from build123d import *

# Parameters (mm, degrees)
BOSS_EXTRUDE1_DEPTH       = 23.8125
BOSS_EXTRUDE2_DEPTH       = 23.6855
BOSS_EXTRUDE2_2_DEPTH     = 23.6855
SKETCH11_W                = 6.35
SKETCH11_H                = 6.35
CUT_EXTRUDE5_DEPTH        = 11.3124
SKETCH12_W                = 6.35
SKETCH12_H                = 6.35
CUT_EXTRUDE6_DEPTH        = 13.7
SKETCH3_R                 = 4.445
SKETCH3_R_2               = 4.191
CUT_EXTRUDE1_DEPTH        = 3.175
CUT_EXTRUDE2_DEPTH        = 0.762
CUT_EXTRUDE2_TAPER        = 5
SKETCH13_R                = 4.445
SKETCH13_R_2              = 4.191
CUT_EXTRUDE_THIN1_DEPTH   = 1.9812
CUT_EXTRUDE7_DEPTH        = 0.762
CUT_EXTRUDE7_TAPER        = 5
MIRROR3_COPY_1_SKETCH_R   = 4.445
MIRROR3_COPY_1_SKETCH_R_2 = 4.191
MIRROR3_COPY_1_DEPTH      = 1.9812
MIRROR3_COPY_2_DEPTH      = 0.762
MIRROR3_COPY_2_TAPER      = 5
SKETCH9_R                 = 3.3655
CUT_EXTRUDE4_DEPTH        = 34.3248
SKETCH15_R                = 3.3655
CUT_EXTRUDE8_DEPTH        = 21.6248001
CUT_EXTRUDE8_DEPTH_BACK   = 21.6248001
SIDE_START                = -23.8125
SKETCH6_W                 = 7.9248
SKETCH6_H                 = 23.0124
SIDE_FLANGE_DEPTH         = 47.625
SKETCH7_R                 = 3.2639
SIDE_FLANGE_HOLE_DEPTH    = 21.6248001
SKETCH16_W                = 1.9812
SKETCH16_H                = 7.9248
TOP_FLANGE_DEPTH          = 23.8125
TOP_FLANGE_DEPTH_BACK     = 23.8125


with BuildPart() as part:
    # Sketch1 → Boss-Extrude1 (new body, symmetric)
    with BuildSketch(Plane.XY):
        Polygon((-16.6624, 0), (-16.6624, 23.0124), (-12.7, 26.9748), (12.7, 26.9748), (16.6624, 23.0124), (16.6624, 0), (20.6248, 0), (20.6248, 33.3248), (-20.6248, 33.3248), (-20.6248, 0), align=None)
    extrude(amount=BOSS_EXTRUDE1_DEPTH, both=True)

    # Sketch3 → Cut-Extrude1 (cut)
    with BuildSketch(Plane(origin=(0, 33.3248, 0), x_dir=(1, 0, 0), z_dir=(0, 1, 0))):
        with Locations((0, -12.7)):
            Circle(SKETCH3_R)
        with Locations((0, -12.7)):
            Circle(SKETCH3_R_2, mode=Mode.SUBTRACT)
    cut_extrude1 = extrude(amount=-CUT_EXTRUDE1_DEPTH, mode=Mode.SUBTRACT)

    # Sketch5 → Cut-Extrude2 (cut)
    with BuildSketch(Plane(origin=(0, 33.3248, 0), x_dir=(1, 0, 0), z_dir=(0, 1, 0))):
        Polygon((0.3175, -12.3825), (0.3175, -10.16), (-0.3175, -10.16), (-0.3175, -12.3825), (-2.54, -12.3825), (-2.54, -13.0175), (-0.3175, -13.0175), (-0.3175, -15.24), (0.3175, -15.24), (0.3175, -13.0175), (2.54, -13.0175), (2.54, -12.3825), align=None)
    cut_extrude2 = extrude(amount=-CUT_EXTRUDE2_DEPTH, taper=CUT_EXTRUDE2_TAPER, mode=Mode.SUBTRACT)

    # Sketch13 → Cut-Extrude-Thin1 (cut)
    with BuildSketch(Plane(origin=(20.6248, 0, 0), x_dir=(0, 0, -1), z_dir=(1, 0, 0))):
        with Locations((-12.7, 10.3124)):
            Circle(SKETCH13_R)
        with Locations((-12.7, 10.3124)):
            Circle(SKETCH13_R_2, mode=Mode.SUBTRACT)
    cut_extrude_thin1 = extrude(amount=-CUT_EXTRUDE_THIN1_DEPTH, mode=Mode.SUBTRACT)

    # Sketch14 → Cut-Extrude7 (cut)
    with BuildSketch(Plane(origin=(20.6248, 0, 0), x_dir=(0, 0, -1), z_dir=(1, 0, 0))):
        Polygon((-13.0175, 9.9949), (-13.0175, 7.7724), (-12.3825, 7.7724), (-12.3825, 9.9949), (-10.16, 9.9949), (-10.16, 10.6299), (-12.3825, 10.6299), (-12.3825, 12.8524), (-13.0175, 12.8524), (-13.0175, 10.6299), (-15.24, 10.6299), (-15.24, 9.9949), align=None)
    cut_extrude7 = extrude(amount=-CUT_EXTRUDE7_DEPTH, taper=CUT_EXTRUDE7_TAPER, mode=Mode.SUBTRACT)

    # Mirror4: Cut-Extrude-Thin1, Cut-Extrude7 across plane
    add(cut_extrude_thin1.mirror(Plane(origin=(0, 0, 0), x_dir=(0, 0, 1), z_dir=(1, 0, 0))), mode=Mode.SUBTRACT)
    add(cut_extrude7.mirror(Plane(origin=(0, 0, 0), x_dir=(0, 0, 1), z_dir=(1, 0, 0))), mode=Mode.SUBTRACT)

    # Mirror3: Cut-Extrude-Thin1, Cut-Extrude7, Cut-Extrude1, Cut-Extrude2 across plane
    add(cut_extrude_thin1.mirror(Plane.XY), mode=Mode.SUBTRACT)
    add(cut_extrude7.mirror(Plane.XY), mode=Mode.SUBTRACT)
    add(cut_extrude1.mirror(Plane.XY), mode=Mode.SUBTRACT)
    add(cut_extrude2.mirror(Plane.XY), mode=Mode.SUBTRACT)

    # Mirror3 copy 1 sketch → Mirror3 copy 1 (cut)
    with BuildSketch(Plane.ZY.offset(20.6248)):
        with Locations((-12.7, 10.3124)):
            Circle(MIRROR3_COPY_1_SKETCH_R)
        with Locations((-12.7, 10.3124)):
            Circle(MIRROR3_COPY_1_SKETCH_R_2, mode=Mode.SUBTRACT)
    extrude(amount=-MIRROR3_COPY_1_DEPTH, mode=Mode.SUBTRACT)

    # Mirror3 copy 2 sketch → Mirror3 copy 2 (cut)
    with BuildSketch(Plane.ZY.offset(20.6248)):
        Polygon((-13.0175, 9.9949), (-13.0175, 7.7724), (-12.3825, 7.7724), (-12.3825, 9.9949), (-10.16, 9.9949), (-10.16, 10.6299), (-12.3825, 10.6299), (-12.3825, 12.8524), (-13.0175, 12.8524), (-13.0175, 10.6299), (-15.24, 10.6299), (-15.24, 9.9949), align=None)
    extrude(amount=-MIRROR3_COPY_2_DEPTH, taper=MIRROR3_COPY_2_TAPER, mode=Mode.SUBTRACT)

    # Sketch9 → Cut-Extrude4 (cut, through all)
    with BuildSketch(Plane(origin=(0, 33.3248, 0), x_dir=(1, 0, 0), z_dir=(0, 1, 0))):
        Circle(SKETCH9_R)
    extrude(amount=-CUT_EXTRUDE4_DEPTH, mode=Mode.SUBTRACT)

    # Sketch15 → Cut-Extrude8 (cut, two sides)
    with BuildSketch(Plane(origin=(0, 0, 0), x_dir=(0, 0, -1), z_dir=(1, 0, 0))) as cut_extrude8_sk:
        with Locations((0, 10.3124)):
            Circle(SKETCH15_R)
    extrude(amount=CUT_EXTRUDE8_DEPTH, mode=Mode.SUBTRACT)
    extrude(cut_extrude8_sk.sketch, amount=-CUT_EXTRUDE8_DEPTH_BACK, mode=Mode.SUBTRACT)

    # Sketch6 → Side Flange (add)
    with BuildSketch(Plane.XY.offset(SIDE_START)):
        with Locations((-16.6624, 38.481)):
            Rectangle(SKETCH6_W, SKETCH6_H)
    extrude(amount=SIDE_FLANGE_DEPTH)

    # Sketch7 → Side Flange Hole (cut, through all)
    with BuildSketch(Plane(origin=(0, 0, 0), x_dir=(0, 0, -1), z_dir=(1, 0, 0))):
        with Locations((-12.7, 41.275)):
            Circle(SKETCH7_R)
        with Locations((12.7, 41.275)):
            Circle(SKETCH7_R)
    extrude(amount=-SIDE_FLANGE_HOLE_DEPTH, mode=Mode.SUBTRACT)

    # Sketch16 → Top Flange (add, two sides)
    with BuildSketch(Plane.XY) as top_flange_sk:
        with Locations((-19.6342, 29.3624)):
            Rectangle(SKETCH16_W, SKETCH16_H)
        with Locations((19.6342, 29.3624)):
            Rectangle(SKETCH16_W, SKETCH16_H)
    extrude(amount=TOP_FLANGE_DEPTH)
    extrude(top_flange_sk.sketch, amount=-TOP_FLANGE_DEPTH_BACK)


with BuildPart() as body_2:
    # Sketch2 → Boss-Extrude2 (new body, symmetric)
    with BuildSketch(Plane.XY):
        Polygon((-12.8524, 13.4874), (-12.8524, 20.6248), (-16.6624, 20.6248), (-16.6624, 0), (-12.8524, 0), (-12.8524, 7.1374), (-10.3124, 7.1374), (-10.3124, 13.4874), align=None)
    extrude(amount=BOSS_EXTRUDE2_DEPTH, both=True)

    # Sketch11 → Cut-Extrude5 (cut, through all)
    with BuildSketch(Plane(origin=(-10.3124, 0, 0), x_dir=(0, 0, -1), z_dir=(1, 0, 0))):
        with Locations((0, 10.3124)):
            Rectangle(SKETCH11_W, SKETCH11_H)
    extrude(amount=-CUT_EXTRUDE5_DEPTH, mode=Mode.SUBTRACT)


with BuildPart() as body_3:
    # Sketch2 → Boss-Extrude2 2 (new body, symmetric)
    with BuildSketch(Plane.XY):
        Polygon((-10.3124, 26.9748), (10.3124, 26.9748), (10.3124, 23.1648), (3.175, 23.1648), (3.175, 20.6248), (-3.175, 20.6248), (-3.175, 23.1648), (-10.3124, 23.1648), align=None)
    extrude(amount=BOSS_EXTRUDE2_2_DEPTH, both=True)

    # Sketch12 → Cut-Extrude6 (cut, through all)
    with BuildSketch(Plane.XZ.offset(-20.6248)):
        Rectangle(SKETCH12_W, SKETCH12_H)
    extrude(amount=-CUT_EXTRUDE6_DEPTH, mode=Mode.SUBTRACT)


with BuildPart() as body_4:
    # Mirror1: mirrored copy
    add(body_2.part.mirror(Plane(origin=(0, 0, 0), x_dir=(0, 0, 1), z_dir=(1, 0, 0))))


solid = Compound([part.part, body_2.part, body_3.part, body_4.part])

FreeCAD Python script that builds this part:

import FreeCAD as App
import Part
import Sketcher
from FreeCAD import Vector
Q = App.Units.Quantity


def add_polygon(sketch, points):
    """Adds a closed chain of lines whose ends are joined by coincident constraints."""
    first, n = sketch.GeometryCount, len(points)
    for a, b in zip(points, points[1:] + points[:1]):
        sketch.addGeometry(Part.LineSegment(App.Vector(*a, 0), App.Vector(*b, 0)), False)
    for i in range(n):
        sketch.addConstraint(Sketcher.Constraint("Coincident", first + i, 2, first + (i + 1) % n, 1))

doc = App.newDocument("Part")
body = doc.addObject("PartDesign::Body", "Body")

# Sketch on XY plane
sketch1 = body.newObject("Sketcher::SketchObject", "Sketch")
sketch1.AttachmentSupport = (doc.getObject("XY_Plane"), [""])
sketch1.MapMode = "FlatFace"
add_polygon(sketch1, [(-16.6624, 0), (-16.6624, 23.0124), (-12.7, 26.9748), (12.7, 26.9748), (16.6624, 23.0124), (16.6624, 0), (20.6248, 0), (20.6248, 33.3248), (-20.6248, 33.3248), (-20.6248, 0)])  # lines 0-9
sketch1.addConstraint([
    Sketcher.Constraint("Vertical", 0),
    Sketcher.Constraint("Horizontal", 2),
    Sketcher.Constraint("Vertical", 4),
    Sketcher.Constraint("Horizontal", 5),
    Sketcher.Constraint("Vertical", 6),
    Sketcher.Constraint("Horizontal", 7),
    Sketcher.Constraint("Vertical", 8),
    Sketcher.Constraint("Horizontal", 9),
    Sketcher.Constraint("Symmetric", 5, 2, 8, 2, -1, 1),
    Sketcher.Constraint("Symmetric", 0, 2, 3, 2, -2),
    Sketcher.Constraint("PointOnObject", 4, 2, -1),
    Sketcher.Constraint("Perpendicular", 1, 3),
    Sketcher.Constraint("Equal", 1, 3),
    Sketcher.Constraint("DistanceX", 2, 1, 2, 2, Q("1 in")),
    Sketcher.Constraint("DistanceX", 5, 1, 5, 2, Q("0.156 in")),
    Sketcher.Constraint("DistanceX", 7, 2, 7, 1, Q("1.624 in")),
    Sketcher.Constraint("DistanceY", 0, 1, 0, 2, Q("0.906 in")),
    Sketcher.Constraint("DistanceY", 6, 1, 6, 2, Q("1.312 in")),
])
pad1 = body.newObject("PartDesign::Pad", "Pad")
pad1.Profile = sketch1
pad1.Length = Q("1.875 in")
pad1.Midplane = True

# Sketch on XZ plane
sketch2 = body.newObject("Sketcher::SketchObject", "Sketch001")
sketch2.AttachmentSupport = (doc.getObject("XZ_Plane"), [""])
sketch2.MapMode = "FlatFace"
sketch2.AttachmentOffset = App.Placement(Vector(0, 0, -1.312 * 25.4), App.Rotation())
sketch2.addGeometry([
    Part.Circle(Vector(0, 12.7, 0), Vector(0, 0, 1), 4.445),
    Part.Circle(Vector(0, 12.7, 0), Vector(0, 0, 1), 4.191),
], False)
sketch2.addConstraint([
    Sketcher.Constraint("Coincident", 1, 3, 0, 3),
    Sketcher.Constraint("PointOnObject", 0, 3, -2),
    Sketcher.Constraint("Diameter", 0, Q("0.35 in")),
    Sketcher.Constraint("Diameter", 1, Q("0.33 in")),
    Sketcher.Constraint("DistanceY", -1, 1, 0, 3, Q("0.5 in")),
])
pocket1 = body.newObject("PartDesign::Pocket", "Pocket")
pocket1.Profile = sketch2
pocket1.Length = Q("0.125 in")
pocket1.Reversed = True

# Sketch on XZ plane
sketch3 = body.newObject("Sketcher::SketchObject", "Sketch002")
sketch3.AttachmentSupport = (doc.getObject("XZ_Plane"), [""])
sketch3.MapMode = "FlatFace"
sketch3.AttachmentOffset = App.Placement(Vector(0, 0, -1.312 * 25.4), App.Rotation())
add_polygon(sketch3, [(0.3175, 12.3825), (0.3175, 10.16), (-0.3175, 10.16), (-0.3175, 12.3825), (-2.54, 12.3825), (-2.54, 13.0175), (-0.3175, 13.0175), (-0.3175, 15.24), (0.3175, 15.24), (0.3175, 13.0175), (2.54, 13.0175), (2.54, 12.3825)])  # lines 0-11
sketch3.addConstraint([
    Sketcher.Constraint("Vertical", 0),
    Sketcher.Constraint("Horizontal", 1),
    Sketcher.Constraint("Vertical", 2),
    Sketcher.Constraint("Horizontal", 3),
    Sketcher.Constraint("Vertical", 4),
    Sketcher.Constraint("Horizontal", 5),
    Sketcher.Constraint("Vertical", 6),
    Sketcher.Constraint("Horizontal", 7),
    Sketcher.Constraint("Vertical", 8),
    Sketcher.Constraint("Horizontal", 9),
    Sketcher.Constraint("Vertical", 10),
    Sketcher.Constraint("Horizontal", 11),
    Sketcher.Constraint("Symmetric", 5, 2, 8, 2, -2),
    Sketcher.Constraint("Symmetric", 3, 2, 10, 2, -2),
    Sketcher.Constraint("Vertical", 2, 2, 5, 2),
    Sketcher.Constraint("Vertical", 0, 2, 7, 2),
    Sketcher.Constraint("Equal", 11, 0),
    Sketcher.Constraint("Equal", 7, 4),
    Sketcher.Constraint("Equal", 2, 6),
    Sketcher.Constraint("DistanceY", -1, 1, 0, 2, Q("0.4 in")),
    Sketcher.Constraint("DistanceX", 3, 2, -1, 1, Q("0.1 in")),
    Sketcher.Constraint("DistanceX", 1, 2, 1, 1, Q("0.025 in")),
])
pocket2 = body.newObject("PartDesign::Pocket", "Pocket001")
pocket2.Profile = sketch3
pocket2.Length = Q("0.03 in")
pocket2.Reversed = True
pocket2.TaperAngle = -5

# Sketch on YZ plane
sketch4 = body.newObject("Sketcher::SketchObject", "Sketch003")
sketch4.AttachmentSupport = (doc.getObject("YZ_Plane"), [""])
sketch4.MapMode = "FlatFace"
sketch4.AttachmentOffset = App.Placement(Vector(0, 0, 0.812 * 25.4), App.Rotation())
sketch4.addGeometry([
    Part.Circle(Vector(10.3124, 12.7, 0), Vector(0, 0, 1), 4.445),
    Part.Circle(Vector(10.3124, 12.7, 0), Vector(0, 0, 1), 4.191),
], False)
sketch4.addConstraint([
    Sketcher.Constraint("Coincident", 1, 3, 0, 3),
    Sketcher.Constraint("Diameter", 0, Q("0.35 in")),
    Sketcher.Constraint("Diameter", 1, Q("0.33 in")),
    Sketcher.Constraint("DistanceY", -1, 1, 0, 3, Q("0.5 in")),
    Sketcher.Constraint("DistanceX", -1, 1, 0, 3, Q("0.406 in")),
])
pocket3 = body.newObject("PartDesign::Pocket", "Pocket002")
pocket3.Profile = sketch4
pocket3.Length = Q("0.078 in")

# Sketch on YZ plane
sketch5 = body.newObject("Sketcher::SketchObject", "Sketch004")
sketch5.AttachmentSupport = (doc.getObject("YZ_Plane"), [""])
sketch5.MapMode = "FlatFace"
sketch5.AttachmentOffset = App.Placement(Vector(0, 0, 0.812 * 25.4), App.Rotation())
add_polygon(sketch5, [(9.9949, 13.0175), (7.7724, 13.0175), (7.7724, 12.3825), (9.9949, 12.3825), (9.9949, 10.16), (10.6299, 10.16), (10.6299, 12.3825), (12.8524, 12.3825), (12.8524, 13.0175), (10.6299, 13.0175), (10.6299, 15.24), (9.9949, 15.24)])  # lines 0-11
sketch5.addConstraint([
    Sketcher.Constraint("Horizontal", 0),
    Sketcher.Constraint("Vertical", 1),
    Sketcher.Constraint("Horizontal", 2),
    Sketcher.Constraint("Vertical", 3),
    Sketcher.Constraint("Horizontal", 4),
    Sketcher.Constraint("Vertical", 5),
    Sketcher.Constraint("Horizontal", 6),
    Sketcher.Constraint("Vertical", 7),
    Sketcher.Constraint("Horizontal", 8),
    Sketcher.Constraint("Vertical", 9),
    Sketcher.Constraint("Horizontal", 10),
    Sketcher.Constraint("Vertical", 11),
    Sketcher.Constraint("Horizontal", 2, 2, 5, 2),
    Sketcher.Constraint("Horizontal", 0, 2, 7, 2),
    Sketcher.Constraint("Vertical", 5, 2, 8, 2),
    Sketcher.Constraint("Vertical", 3, 2, 10, 2),
    Sketcher.Constraint("Equal", 2, 6),
    Sketcher.Constraint("Equal", 10, 1),
    Sketcher.Constraint("Equal", 8, 3),
    Sketcher.Constraint("Equal", 5, 9),
    Sketcher.Constraint("DistanceY", -1, 1, 3, 2, Q("0.4 in")),
    Sketcher.Constraint("DistanceY", -1, 1, 9, 2, Q("0.6 in")),
    Sketcher.Constraint("DistanceX", 4, 1, 4, 2, Q("0.025 in")),
    Sketcher.Constraint("DistanceX", -1, 1, 0, 2, Q("0.306 in")),
])
pocket4 = body.newObject("PartDesign::Pocket", "Pocket003")
pocket4.Profile = sketch5
pocket4.Length = Q("0.03 in")
pocket4.TaperAngle = -5
doc.recompute()

mirrored = body.newObject("PartDesign::Mirrored", "Mirrored")
mirrored.Originals = [pocket3, pocket4]
mirrored.MirrorPlane = (doc.getObject("YZ_Plane"), [""])
body.Tip = mirrored
doc.recompute()

mirrored2 = body.newObject("PartDesign::Mirrored", "Mirrored001")
mirrored2.Originals = [pocket3, pocket4, pocket1, pocket2]
mirrored2.MirrorPlane = (doc.getObject("XY_Plane"), [""])
body.Tip = mirrored2

# Sketch on YZ plane
sketch6 = body.newObject("Sketcher::SketchObject", "Sketch005")
sketch6.AttachmentSupport = (doc.getObject("YZ_Plane"), [""])
sketch6.MapMode = "FlatFace"
sketch6.AttachmentOffset = App.Placement(Vector(0, 0, -0.812 * 25.4), App.Rotation())
sketch6.addGeometry([
    Part.Circle(Vector(10.3124, -12.7, 0), Vector(0, 0, 1), 4.445),
    Part.Circle(Vector(10.3124, -12.7, 0), Vector(0, 0, 1), 4.191),
], False)
sketch6.addConstraint([
    Sketcher.Constraint("Coincident", 1, 3, 0, 3),
    Sketcher.Constraint("Diameter", 0, Q("0.35 in")),
    Sketcher.Constraint("Diameter", 1, Q("0.33 in")),
    Sketcher.Constraint("DistanceY", 0, 3, -1, 1, Q("0.5 in")),
    Sketcher.Constraint("DistanceX", -1, 1, 0, 3, Q("0.406 in")),
])
pocket5 = body.newObject("PartDesign::Pocket", "Pocket004")
pocket5.Profile = sketch6
pocket5.Length = Q("0.078 in")
pocket5.Reversed = True

# Sketch on YZ plane
sketch7 = body.newObject("Sketcher::SketchObject", "Sketch006")
sketch7.AttachmentSupport = (doc.getObject("YZ_Plane"), [""])
sketch7.MapMode = "FlatFace"
sketch7.AttachmentOffset = App.Placement(Vector(0, 0, -0.812 * 25.4), App.Rotation())
add_polygon(sketch7, [(9.9949, -13.0175), (7.7724, -13.0175), (7.7724, -12.3825), (9.9949, -12.3825), (9.9949, -10.16), (10.6299, -10.16), (10.6299, -12.3825), (12.8524, -12.3825), (12.8524, -13.0175), (10.6299, -13.0175), (10.6299, -15.24), (9.9949, -15.24)])  # lines 0-11
sketch7.addConstraint([
    Sketcher.Constraint("Horizontal", 0),
    Sketcher.Constraint("Vertical", 1),
    Sketcher.Constraint("Horizontal", 2),
    Sketcher.Constraint("Vertical", 3),
    Sketcher.Constraint("Horizontal", 4),
    Sketcher.Constraint("Vertical", 5),
    Sketcher.Constraint("Horizontal", 6),
    Sketcher.Constraint("Vertical", 7),
    Sketcher.Constraint("Horizontal", 8),
    Sketcher.Constraint("Vertical", 9),
    Sketcher.Constraint("Horizontal", 10),
    Sketcher.Constraint("Vertical", 11),
    Sketcher.Constraint("Horizontal", 2, 2, 5, 2),
    Sketcher.Constraint("Horizontal", 0, 2, 7, 2),
    Sketcher.Constraint("Vertical", 5, 2, 8, 2),
    Sketcher.Constraint("Vertical", 3, 2, 10, 2),
    Sketcher.Constraint("Equal", 2, 6),
    Sketcher.Constraint("Equal", 10, 1),
    Sketcher.Constraint("Equal", 8, 3),
    Sketcher.Constraint("Equal", 5, 9),
    Sketcher.Constraint("DistanceY", 3, 2, -1, 1, Q("0.4 in")),
    Sketcher.Constraint("DistanceY", 9, 2, -1, 1, Q("0.6 in")),
    Sketcher.Constraint("DistanceX", 4, 1, 4, 2, Q("0.025 in")),
    Sketcher.Constraint("DistanceX", -1, 1, 0, 2, Q("0.306 in")),
])
pocket6 = body.newObject("PartDesign::Pocket", "Pocket005")
pocket6.Profile = sketch7
pocket6.Length = Q("0.03 in")
pocket6.Reversed = True
pocket6.TaperAngle = -5

# Sketch on XZ plane
sketch8 = body.newObject("Sketcher::SketchObject", "Sketch007")
sketch8.AttachmentSupport = (doc.getObject("XZ_Plane"), [""])
sketch8.MapMode = "FlatFace"
sketch8.AttachmentOffset = App.Placement(Vector(0, 0, -1.312 * 25.4), App.Rotation())
sketch8.addGeometry(Part.Circle(Vector(0, 0, 0), Vector(0, 0, 1), 3.3655), False)
sketch8.addConstraint([
    Sketcher.Constraint("Coincident", 0, 3, -1, 1),
    Sketcher.Constraint("Diameter", 0, Q("0.265 in")),
])
pocket7 = body.newObject("PartDesign::Pocket", "Pocket006")
pocket7.Profile = sketch8
pocket7.Type = "ThroughAll"
pocket7.Reversed = True

# Sketch on YZ plane
sketch9 = body.newObject("Sketcher::SketchObject", "Sketch008")
sketch9.AttachmentSupport = (doc.getObject("YZ_Plane"), [""])
sketch9.MapMode = "FlatFace"
sketch9.addGeometry(Part.Circle(Vector(10.3124, 0, 0), Vector(0, 0, 1), 3.3655), False)
sketch9.addConstraint([
    Sketcher.Constraint("PointOnObject", 0, 3, -1),
    Sketcher.Constraint("Diameter", 0, Q("0.265 in")),
    Sketcher.Constraint("DistanceX", -1, 1, 0, 3, Q("0.406 in")),
])
pocket8 = body.newObject("PartDesign::Pocket", "Pocket007")
pocket8.Profile = sketch9
pocket8.Type = "ThroughAll"
pocket8.Midplane = True

# Sketch on XY plane
sketch10 = body.newObject("Sketcher::SketchObject", "Sketch009")
sketch10.AttachmentSupport = (doc.getObject("XY_Plane"), [""])
sketch10.MapMode = "FlatFace"
sketch10.AttachmentOffset = App.Placement(Vector(0, 0, -0.9375 * 25.4), App.Rotation())
add_polygon(sketch10, [(-20.6248, 49.9872), (-20.6248, 26.9748), (-12.7, 26.9748), (-12.7, 49.9872)])  # lines 0-3
sketch10.addConstraint([
    Sketcher.Constraint("Vertical", 0),
    Sketcher.Constraint("Horizontal", 1),
    Sketcher.Constraint("Vertical", 2),
    Sketcher.Constraint("Horizontal", 3),
    Sketcher.Constraint("DistanceX", 1, 2, -1, 1, Q("0.5 in")),
    Sketcher.Constraint("DistanceX", 1, 1, 1, 2, Q("0.312 in")),
    Sketcher.Constraint("DistanceY", 0, 2, 0, 1, Q("0.906 in")),
    Sketcher.Constraint("DistanceY", -1, 1, 0, 2, Q("1.062 in")),
])
pad2 = body.newObject("PartDesign::Pad", "Pad001")
pad2.Profile = sketch10
pad2.Length = Q("1.875 in")

# Sketch on YZ plane
sketch11 = body.newObject("Sketcher::SketchObject", "Sketch010")
sketch11.AttachmentSupport = (doc.getObject("YZ_Plane"), [""])
sketch11.MapMode = "FlatFace"
sketch11.addGeometry([
    Part.Circle(Vector(41.275, 12.7, 0), Vector(0, 0, 1), 3.2639),
    Part.Circle(Vector(41.275, -12.7, 0), Vector(0, 0, 1), 3.2639),
], False)
sketch11.addConstraint([
    Sketcher.Constraint("Equal", 0, 1),
    Sketcher.Constraint("Symmetric", 0, 3, 1, 3, -1),
    Sketcher.Constraint("Diameter", 0, Q("0.257 in")),
    Sketcher.Constraint("DistanceY", 1, 3, 0, 3, Q("1 in")),
    Sketcher.Constraint("DistanceX", -1, 1, 0, 3, Q("1.625 in")),
])
pocket9 = body.newObject("PartDesign::Pocket", "Pocket008")
pocket9.Profile = sketch11
pocket9.Type = "ThroughAll"

# Sketch on XY plane
sketch12 = body.newObject("Sketcher::SketchObject", "Sketch011")
sketch12.AttachmentSupport = (doc.getObject("XY_Plane"), [""])
sketch12.MapMode = "FlatFace"
add_polygon(sketch12, [(-20.6248, 33.3248), (-20.6248, 25.4), (-18.6436, 25.4), (-18.6436, 33.3248)])  # lines 0-3
add_polygon(sketch12, [(18.6436, 33.3248), (18.6436, 25.4), (20.6248, 25.4), (20.6248, 33.3248)])  # lines 4-7
sketch12.addConstraint([
    Sketcher.Constraint("Vertical", 0),
    Sketcher.Constraint("Horizontal", 1),
    Sketcher.Constraint("Vertical", 2),
    Sketcher.Constraint("Horizontal", 3),
    Sketcher.Constraint("Vertical", 4),
    Sketcher.Constraint("Horizontal", 5),
    Sketcher.Constraint("Vertical", 6),
    Sketcher.Constraint("Horizontal", 7),
    Sketcher.Constraint("Symmetric", 1, 2, 4, 2, -2),
    Sketcher.Constraint("Symmetric", 3, 2, 6, 2, -2),
    Sketcher.Constraint("DistanceY", -1, 1, 0, 2, Q("1 in")),
    Sketcher.Constraint("DistanceX", 1, 1, 1, 2, Q("0.078 in")),
    Sketcher.Constraint("DistanceY", 0, 2, 0, 1, Q("0.312 in")),
    Sketcher.Constraint("DistanceX", 0, 2, -1, 1, Q("0.812 in")),
])
pad3 = body.newObject("PartDesign::Pad", "Pad002")
pad3.Profile = sketch12
pad3.Type = "TwoLengths"
pad3.Length = Q("0.9375 in")
pad3.Length2 = Q("0.9375 in")
body2 = doc.addObject("PartDesign::Body", "Body001")

# Sketch on XY plane
sketch13 = body2.newObject("Sketcher::SketchObject", "Sketch012")
sketch13.AttachmentSupport = (doc.getObject("XY_Plane001"), [""])
sketch13.MapMode = "FlatFace"
add_polygon(sketch13, [(-12.8524, 13.4874), (-12.8524, 20.6248), (-16.6624, 20.6248), (-16.6624, 0), (-12.8524, 0), (-12.8524, 7.1374), (-10.3124, 7.1374), (-10.3124, 13.4874)])  # lines 0-7
sketch13.addConstraint([
    Sketcher.Constraint("Vertical", 0),
    Sketcher.Constraint("Horizontal", 1),
    Sketcher.Constraint("Vertical", 2),
    Sketcher.Constraint("Horizontal", 3),
    Sketcher.Constraint("Vertical", 4),
    Sketcher.Constraint("Horizontal", 5),
    Sketcher.Constraint("Vertical", 6),
    Sketcher.Constraint("Horizontal", 7),
    Sketcher.Constraint("PointOnObject", 2, 2, -1),
    Sketcher.Constraint("Vertical", 0, 2, 3, 2),
    Sketcher.Constraint("Equal", 0, 4),
    Sketcher.Constraint("DistanceX", 5, 1, 5, 2, Q("0.1 in")),
    Sketcher.Constraint("DistanceX", 1, 2, 1, 1, Q("0.15 in")),
    Sketcher.Constraint("DistanceY", 6, 1, 6, 2, Q("0.25 in")),
    Sketcher.Constraint("DistanceY", 0, 1, 0, 2, Q("0.281 in")),
    Sketcher.Constraint("DistanceX", 0, 2, -1, 1, Q("0.506 in")),
])
pad4 = body2.newObject("PartDesign::Pad", "Pad003")
pad4.Profile = sketch13
pad4.Length = Q("1.865 in")
pad4.Midplane = True

# Sketch on YZ plane
sketch14 = body2.newObject("Sketcher::SketchObject", "Sketch013")
sketch14.AttachmentSupport = (doc.getObject("YZ_Plane001"), [""])
sketch14.MapMode = "FlatFace"
sketch14.AttachmentOffset = App.Placement(Vector(0, 0, -0.406 * 25.4), App.Rotation())
add_polygon(sketch14, [(13.4874, 3.175), (7.1374, 3.175), (7.1374, -3.175), (13.4874, -3.175)])  # lines 0-3
sketch14.addConstraint([
    Sketcher.Constraint("Horizontal", 0),
    Sketcher.Constraint("Vertical", 1),
    Sketcher.Constraint("Horizontal", 2),
    Sketcher.Constraint("Vertical", 3),
    Sketcher.Constraint("Equal", 2, 1),
    Sketcher.Constraint("DistanceX", 0, 2, 0, 1, Q("0.25 in")),
    Sketcher.Constraint("DistanceX", -1, 1, 0, 2, Q("0.281 in")),
    Sketcher.Constraint("DistanceY", -1, 1, 0, 2, Q("0.125 in")),
])
pocket10 = body2.newObject("PartDesign::Pocket", "Pocket009")
pocket10.Profile = sketch14
pocket10.Type = "ThroughAll"
body3 = doc.addObject("PartDesign::Body", "Body002")

# Sketch on XY plane
sketch15 = body3.newObject("Sketcher::SketchObject", "Sketch014")
sketch15.AttachmentSupport = (doc.getObject("XY_Plane002"), [""])
sketch15.MapMode = "FlatFace"
add_polygon(sketch15, [(10.3124, 26.9748), (-10.3124, 26.9748), (-10.3124, 23.1648), (-3.175, 23.1648), (-3.175, 20.6248), (3.175, 20.6248), (3.175, 23.1648), (10.3124, 23.1648)])  # lines 0-7
sketch15.addConstraint([
    Sketcher.Constraint("Horizontal", 0),
    Sketcher.Constraint("Vertical", 1),
    Sketcher.Constraint("Horizontal", 2),
    Sketcher.Constraint("Vertical", 3),
    Sketcher.Constraint("Horizontal", 4),
    Sketcher.Constraint("Vertical", 5),
    Sketcher.Constraint("Horizontal", 6),
    Sketcher.Constraint("Vertical", 7),
    Sketcher.Constraint("Symmetric", 2, 2, 5, 2, -2),
    Sketcher.Constraint("Equal", 2, 6),
    Sketcher.Constraint("DistanceY", 3, 2, 3, 1, Q("0.1 in")),
    Sketcher.Constraint("DistanceX", 4, 1, 4, 2, Q("0.25 in")),
    Sketcher.Constraint("DistanceY", 1, 2, 1, 1, Q("0.15 in")),
    Sketcher.Constraint("DistanceX", 0, 2, 0, 1, Q("0.812 in")),
    Sketcher.Constraint("DistanceY", -1, 1, 0, 2, Q("1.062 in")),
])
pad5 = body3.newObject("PartDesign::Pad", "Pad004")
pad5.Profile = sketch15
pad5.Length = Q("1.865 in")
pad5.Midplane = True

# Sketch on XZ plane
sketch16 = body3.newObject("Sketcher::SketchObject", "Sketch015")
sketch16.AttachmentSupport = (doc.getObject("XZ_Plane002"), [""])
sketch16.MapMode = "FlatFace"
sketch16.AttachmentOffset = App.Placement(Vector(0, 0, -0.812 * 25.4), App.Rotation())
add_polygon(sketch16, [(-3.175, 3.175), (-3.175, -3.175), (3.175, -3.175), (3.175, 3.175)])  # lines 0-3
sketch16.addConstraint([
    Sketcher.Constraint("Vertical", 0),
    Sketcher.Constraint("Horizontal", 1),
    Sketcher.Constraint("Vertical", 2),
    Sketcher.Constraint("Horizontal", 3),
    Sketcher.Constraint("Symmetric", 0, 2, 2, 2, -1, 1),
    Sketcher.Constraint("Equal", 3, 0),
    Sketcher.Constraint("DistanceX", 1, 1, 1, 2, Q("0.25 in")),
])
pocket11 = body3.newObject("PartDesign::Pocket", "Pocket010")
pocket11.Profile = sketch16
pocket11.Type = "ThroughAll"
body4 = doc.addObject("PartDesign::Body", "Body003")
doc.recompute()

mirroring = doc.addObject("Part::Mirroring", "Mirroring")
mirroring.Source = body2
mirroring.Base = Vector(0, 0, 0)
mirroring.Normal = Vector(1, 0, 0)
body4.BaseFeature = mirroring
doc.recompute()
mirroring.Visibility = False

doc.recompute()
